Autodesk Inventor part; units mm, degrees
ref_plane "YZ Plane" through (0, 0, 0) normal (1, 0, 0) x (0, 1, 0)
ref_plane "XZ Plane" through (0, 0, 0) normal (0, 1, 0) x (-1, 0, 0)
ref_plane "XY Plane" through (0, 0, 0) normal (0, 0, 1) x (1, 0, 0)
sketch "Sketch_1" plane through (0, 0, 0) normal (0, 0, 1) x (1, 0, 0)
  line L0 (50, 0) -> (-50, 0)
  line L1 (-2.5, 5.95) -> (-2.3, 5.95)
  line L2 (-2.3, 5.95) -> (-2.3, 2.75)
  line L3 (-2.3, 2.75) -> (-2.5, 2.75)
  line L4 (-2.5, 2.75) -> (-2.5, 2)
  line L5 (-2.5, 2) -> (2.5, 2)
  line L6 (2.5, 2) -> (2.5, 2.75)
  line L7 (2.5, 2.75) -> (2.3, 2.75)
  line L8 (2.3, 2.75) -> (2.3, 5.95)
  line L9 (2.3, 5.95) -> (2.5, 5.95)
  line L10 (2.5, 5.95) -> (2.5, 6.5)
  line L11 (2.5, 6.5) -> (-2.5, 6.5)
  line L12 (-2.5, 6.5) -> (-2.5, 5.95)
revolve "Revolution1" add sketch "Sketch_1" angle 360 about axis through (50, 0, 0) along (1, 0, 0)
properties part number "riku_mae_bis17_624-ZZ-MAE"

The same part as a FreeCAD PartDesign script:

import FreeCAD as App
import Part
import Sketcher
from FreeCAD import Vector

doc = App.newDocument("Part")
body = doc.addObject("PartDesign::Body", "Body")

sketch1 = doc.addObject("Sketcher::SketchObject", "Sketch")
body.addObject(sketch1)
sketch1.AttachmentSupport = (doc.XY_Plane, [""])
sketch1.MapMode = "FlatFace"
sketch1.addGeometry([
    Part.LineSegment(Vector(-2.5, 6.5, 0), Vector(-2.5, 5.95, 0)),
    Part.LineSegment(Vector(-2.5, 5.95, 0), Vector(-2.3, 5.95, 0)),
    Part.LineSegment(Vector(-2.3, 5.95, 0), Vector(-2.3, 2.75, 0)),
    Part.LineSegment(Vector(-2.3, 2.75, 0), Vector(-2.5, 2.75, 0)),
    Part.LineSegment(Vector(-2.5, 2.75, 0), Vector(-2.5, 2, 0)),
    Part.LineSegment(Vector(-2.5, 2, 0), Vector(2.5, 2, 0)),
    Part.LineSegment(Vector(2.5, 2, 0), Vector(2.5, 2.75, 0)),
    Part.LineSegment(Vector(2.5, 2.75, 0), Vector(2.3, 2.75, 0)),
    Part.LineSegment(Vector(2.3, 2.75, 0), Vector(2.3, 5.95, 0)),
    Part.LineSegment(Vector(2.3, 5.95, 0), Vector(2.5, 5.95, 0)),
    Part.LineSegment(Vector(2.5, 5.95, 0), Vector(2.5, 6.5, 0)),
    Part.LineSegment(Vector(2.5, 6.5, 0), Vector(-2.5, 6.5, 0)),
], False)
sketch1.addConstraint([
    Sketcher.Constraint("Coincident", 0, 2, 1, 1),
    Sketcher.Constraint("Coincident", 1, 2, 2, 1),
    Sketcher.Constraint("Coincident", 2, 2, 3, 1),
    Sketcher.Constraint("Coincident", 3, 2, 4, 1),
    Sketcher.Constraint("Coincident", 4, 2, 5, 1),
    Sketcher.Constraint("Coincident", 5, 2, 6, 1),
    Sketcher.Constraint("Coincident", 6, 2, 7, 1),
    Sketcher.Constraint("Coincident", 7, 2, 8, 1),
    Sketcher.Constraint("Coincident", 8, 2, 9, 1),
    Sketcher.Constraint("Coincident", 9, 2, 10, 1),
    Sketcher.Constraint("Coincident", 10, 2, 11, 1),
    Sketcher.Constraint("Coincident", 11, 2, 0, 1),
    Sketcher.Constraint("Vertical", 0),
    Sketcher.Constraint("Horizontal", 1),
    Sketcher.Constraint("Vertical", 2),
    Sketcher.Constraint("Horizontal", 3),
    Sketcher.Constraint("Vertical", 4),
    Sketcher.Constraint("Horizontal", 5),
    Sketcher.Constraint("Vertical", 6),
    Sketcher.Constraint("Horizontal", 7),
    Sketcher.Constraint("Vertical", 8),
    Sketcher.Constraint("Horizontal", 9),
    Sketcher.Constraint("Vertical", 10),
    Sketcher.Constraint("Horizontal", 11),
    Sketcher.Constraint("Symmetric", 3, 2, 6, 2, -2),
    Sketcher.Constraint("Symmetric", 1, 2, 8, 2, -2),
    Sketcher.Constraint("Vertical", 0, 2, 3, 2),
    Sketcher.Constraint("Vertical", 6, 2, 9, 2),
    Sketcher.Constraint("DistanceX", 5, 1, 5, 2, 5.0),
    Sketcher.Constraint("DistanceX", 1, 1, 1, 2, 0.2),
    Sketcher.Constraint("DistanceY", 2, 2, 2, 1, 3.2),
    Sketcher.Constraint("DistanceY", -1, 1, 4, 2, 2.0),
    Sketcher.Constraint("DistanceY", 0, 2, 0, 1, 0.55),
    Sketcher.Constraint("DistanceY", 4, 2, 4, 1, 0.75),
])
revolution = doc.addObject("PartDesign::Revolution", "Revolution")
body.addObject(revolution)
revolution.Profile = sketch1
revolution.ReferenceAxis = (sketch1, ["H_Axis"])
revolution.Angle = 360

doc.recompute()
